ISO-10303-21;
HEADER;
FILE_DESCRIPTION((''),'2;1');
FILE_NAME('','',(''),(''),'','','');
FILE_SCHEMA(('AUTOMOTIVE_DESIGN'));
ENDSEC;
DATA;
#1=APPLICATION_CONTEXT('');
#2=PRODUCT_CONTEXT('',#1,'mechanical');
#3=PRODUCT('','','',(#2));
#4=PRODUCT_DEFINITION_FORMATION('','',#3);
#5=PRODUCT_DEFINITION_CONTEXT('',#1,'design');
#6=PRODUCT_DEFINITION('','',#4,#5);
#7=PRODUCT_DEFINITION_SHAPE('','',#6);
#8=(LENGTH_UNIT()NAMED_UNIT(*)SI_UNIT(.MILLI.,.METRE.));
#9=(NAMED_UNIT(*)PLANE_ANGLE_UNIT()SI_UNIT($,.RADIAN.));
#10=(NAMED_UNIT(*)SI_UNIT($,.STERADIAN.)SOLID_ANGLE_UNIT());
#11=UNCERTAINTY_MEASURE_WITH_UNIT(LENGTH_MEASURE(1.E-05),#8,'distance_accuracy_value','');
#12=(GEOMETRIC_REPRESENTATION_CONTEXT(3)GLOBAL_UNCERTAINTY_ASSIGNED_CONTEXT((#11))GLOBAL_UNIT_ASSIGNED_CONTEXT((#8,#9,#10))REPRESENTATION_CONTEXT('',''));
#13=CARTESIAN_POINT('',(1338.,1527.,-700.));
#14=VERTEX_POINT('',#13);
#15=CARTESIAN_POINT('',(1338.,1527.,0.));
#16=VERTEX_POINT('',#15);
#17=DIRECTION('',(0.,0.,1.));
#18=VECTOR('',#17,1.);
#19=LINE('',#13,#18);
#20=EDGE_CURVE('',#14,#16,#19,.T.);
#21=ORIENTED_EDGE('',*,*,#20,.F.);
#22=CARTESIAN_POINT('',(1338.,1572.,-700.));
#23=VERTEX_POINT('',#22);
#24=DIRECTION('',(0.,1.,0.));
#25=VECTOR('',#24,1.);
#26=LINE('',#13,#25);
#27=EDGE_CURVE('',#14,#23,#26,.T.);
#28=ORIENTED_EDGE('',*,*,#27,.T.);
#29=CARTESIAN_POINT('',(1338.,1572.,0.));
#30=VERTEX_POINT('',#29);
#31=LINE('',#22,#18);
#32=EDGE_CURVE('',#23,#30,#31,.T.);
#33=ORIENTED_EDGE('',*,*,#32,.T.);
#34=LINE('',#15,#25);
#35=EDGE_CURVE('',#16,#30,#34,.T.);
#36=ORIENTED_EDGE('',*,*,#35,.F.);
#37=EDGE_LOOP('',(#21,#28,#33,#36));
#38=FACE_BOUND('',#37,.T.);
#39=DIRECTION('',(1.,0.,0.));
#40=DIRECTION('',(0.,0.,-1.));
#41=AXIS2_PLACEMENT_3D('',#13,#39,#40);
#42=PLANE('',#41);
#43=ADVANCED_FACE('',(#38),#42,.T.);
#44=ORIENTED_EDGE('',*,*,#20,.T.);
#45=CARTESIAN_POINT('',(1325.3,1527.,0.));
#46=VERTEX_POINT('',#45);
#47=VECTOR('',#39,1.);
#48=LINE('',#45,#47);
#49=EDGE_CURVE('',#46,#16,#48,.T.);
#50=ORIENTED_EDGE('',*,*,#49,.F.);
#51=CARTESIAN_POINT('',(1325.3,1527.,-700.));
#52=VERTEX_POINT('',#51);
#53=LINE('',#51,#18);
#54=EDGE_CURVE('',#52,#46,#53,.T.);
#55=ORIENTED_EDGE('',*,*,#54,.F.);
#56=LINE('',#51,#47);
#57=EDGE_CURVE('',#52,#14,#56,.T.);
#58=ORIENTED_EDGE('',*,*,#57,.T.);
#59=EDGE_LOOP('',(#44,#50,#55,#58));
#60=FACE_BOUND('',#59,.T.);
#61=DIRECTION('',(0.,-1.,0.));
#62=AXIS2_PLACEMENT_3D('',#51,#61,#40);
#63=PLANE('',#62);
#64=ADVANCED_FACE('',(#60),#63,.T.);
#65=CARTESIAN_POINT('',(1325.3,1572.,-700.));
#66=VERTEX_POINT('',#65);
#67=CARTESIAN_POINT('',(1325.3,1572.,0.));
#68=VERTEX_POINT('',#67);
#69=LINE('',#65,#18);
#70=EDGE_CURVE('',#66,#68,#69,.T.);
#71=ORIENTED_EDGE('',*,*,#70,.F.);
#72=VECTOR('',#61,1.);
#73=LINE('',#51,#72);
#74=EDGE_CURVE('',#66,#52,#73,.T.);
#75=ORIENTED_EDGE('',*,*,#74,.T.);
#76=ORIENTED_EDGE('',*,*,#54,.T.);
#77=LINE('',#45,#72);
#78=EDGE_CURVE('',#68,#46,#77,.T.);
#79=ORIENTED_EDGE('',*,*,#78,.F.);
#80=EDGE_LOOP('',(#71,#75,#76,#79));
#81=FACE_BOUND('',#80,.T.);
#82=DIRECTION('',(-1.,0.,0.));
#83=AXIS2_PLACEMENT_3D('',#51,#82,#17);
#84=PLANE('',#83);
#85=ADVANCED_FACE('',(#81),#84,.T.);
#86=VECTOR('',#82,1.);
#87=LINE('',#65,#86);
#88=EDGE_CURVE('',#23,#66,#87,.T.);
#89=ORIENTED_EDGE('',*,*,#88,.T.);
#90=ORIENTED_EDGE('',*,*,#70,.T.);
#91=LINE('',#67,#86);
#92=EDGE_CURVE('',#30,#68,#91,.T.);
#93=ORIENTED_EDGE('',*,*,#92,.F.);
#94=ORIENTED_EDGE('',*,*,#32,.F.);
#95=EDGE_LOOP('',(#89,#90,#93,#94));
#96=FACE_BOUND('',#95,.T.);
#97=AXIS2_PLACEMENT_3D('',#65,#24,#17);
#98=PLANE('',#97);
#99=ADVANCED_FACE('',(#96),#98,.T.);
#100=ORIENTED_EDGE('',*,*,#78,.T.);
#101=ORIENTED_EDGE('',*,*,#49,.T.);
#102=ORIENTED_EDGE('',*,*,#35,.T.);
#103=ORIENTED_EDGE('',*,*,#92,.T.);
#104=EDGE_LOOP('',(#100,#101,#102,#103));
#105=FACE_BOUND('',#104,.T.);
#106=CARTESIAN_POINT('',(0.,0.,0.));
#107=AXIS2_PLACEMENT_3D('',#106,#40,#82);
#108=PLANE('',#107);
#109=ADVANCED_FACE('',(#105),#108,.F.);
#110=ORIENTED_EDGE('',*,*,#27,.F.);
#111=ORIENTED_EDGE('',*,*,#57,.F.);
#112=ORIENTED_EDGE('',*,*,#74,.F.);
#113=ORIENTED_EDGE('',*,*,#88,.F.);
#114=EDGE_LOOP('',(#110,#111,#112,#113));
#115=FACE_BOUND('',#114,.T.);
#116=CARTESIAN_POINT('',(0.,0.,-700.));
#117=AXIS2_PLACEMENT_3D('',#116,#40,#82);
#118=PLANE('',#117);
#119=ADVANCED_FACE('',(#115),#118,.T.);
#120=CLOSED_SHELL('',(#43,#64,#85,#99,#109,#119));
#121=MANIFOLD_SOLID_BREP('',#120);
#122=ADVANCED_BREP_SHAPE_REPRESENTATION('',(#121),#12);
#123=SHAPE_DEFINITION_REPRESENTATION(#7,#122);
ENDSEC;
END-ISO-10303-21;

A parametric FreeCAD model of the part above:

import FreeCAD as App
import Part
import Sketcher

doc = App.newDocument("Part")
body = doc.addObject("PartDesign::Body", "Body")

sketch1 = body.newObject("Sketcher::SketchObject", "Sketch")
sketch1.AttachmentSupport = (doc.getObject("XY_Plane"), [""])
sketch1.MapMode = "FlatFace"
sketch1.addGeometry(Part.LineSegment(App.Vector(1325.3, 1572, 0), App.Vector(1325.3, 1527, 0)), False)
sketch1.addGeometry(Part.LineSegment(App.Vector(1325.3, 1527, 0), App.Vector(1338, 1527, 0)), False)
sketch1.addGeometry(Part.LineSegment(App.Vector(1338, 1527, 0), App.Vector(1338, 1572, 0)), False)
sketch1.addGeometry(Part.LineSegment(App.Vector(1338, 1572, 0), App.Vector(1325.3, 1572, 0)), False)
sketch1.addConstraint(Sketcher.Constraint("Coincident", 0, 2, 1, 1))
sketch1.addConstraint(Sketcher.Constraint("Coincident", 1, 2, 2, 1))
sketch1.addConstraint(Sketcher.Constraint("Coincident", 2, 2, 3, 1))
sketch1.addConstraint(Sketcher.Constraint("Coincident", 3, 2, 0, 1))
sketch1.addConstraint(Sketcher.Constraint("Vertical", 0))
sketch1.addConstraint(Sketcher.Constraint("Horizontal", 1))
sketch1.addConstraint(Sketcher.Constraint("Vertical", 2))
sketch1.addConstraint(Sketcher.Constraint("Horizontal", 3))
sketch1.addConstraint(Sketcher.Constraint("DistanceY", 0, 2, 0, 1, 45.0))
sketch1.addConstraint(Sketcher.Constraint("DistanceX", 1, 1, 1, 2, 12.7))
sketch1.addConstraint(Sketcher.Constraint("DistanceY", -1, 1, 0, 2, 1527.0))
sketch1.addConstraint(Sketcher.Constraint("DistanceX", -1, 1, 1, 2, 1338.0))
pad1 = body.newObject("PartDesign::Pad", "Pad")
pad1.Profile = sketch1
pad1.Length = 700
pad1.Reversed = True

doc.recompute()
